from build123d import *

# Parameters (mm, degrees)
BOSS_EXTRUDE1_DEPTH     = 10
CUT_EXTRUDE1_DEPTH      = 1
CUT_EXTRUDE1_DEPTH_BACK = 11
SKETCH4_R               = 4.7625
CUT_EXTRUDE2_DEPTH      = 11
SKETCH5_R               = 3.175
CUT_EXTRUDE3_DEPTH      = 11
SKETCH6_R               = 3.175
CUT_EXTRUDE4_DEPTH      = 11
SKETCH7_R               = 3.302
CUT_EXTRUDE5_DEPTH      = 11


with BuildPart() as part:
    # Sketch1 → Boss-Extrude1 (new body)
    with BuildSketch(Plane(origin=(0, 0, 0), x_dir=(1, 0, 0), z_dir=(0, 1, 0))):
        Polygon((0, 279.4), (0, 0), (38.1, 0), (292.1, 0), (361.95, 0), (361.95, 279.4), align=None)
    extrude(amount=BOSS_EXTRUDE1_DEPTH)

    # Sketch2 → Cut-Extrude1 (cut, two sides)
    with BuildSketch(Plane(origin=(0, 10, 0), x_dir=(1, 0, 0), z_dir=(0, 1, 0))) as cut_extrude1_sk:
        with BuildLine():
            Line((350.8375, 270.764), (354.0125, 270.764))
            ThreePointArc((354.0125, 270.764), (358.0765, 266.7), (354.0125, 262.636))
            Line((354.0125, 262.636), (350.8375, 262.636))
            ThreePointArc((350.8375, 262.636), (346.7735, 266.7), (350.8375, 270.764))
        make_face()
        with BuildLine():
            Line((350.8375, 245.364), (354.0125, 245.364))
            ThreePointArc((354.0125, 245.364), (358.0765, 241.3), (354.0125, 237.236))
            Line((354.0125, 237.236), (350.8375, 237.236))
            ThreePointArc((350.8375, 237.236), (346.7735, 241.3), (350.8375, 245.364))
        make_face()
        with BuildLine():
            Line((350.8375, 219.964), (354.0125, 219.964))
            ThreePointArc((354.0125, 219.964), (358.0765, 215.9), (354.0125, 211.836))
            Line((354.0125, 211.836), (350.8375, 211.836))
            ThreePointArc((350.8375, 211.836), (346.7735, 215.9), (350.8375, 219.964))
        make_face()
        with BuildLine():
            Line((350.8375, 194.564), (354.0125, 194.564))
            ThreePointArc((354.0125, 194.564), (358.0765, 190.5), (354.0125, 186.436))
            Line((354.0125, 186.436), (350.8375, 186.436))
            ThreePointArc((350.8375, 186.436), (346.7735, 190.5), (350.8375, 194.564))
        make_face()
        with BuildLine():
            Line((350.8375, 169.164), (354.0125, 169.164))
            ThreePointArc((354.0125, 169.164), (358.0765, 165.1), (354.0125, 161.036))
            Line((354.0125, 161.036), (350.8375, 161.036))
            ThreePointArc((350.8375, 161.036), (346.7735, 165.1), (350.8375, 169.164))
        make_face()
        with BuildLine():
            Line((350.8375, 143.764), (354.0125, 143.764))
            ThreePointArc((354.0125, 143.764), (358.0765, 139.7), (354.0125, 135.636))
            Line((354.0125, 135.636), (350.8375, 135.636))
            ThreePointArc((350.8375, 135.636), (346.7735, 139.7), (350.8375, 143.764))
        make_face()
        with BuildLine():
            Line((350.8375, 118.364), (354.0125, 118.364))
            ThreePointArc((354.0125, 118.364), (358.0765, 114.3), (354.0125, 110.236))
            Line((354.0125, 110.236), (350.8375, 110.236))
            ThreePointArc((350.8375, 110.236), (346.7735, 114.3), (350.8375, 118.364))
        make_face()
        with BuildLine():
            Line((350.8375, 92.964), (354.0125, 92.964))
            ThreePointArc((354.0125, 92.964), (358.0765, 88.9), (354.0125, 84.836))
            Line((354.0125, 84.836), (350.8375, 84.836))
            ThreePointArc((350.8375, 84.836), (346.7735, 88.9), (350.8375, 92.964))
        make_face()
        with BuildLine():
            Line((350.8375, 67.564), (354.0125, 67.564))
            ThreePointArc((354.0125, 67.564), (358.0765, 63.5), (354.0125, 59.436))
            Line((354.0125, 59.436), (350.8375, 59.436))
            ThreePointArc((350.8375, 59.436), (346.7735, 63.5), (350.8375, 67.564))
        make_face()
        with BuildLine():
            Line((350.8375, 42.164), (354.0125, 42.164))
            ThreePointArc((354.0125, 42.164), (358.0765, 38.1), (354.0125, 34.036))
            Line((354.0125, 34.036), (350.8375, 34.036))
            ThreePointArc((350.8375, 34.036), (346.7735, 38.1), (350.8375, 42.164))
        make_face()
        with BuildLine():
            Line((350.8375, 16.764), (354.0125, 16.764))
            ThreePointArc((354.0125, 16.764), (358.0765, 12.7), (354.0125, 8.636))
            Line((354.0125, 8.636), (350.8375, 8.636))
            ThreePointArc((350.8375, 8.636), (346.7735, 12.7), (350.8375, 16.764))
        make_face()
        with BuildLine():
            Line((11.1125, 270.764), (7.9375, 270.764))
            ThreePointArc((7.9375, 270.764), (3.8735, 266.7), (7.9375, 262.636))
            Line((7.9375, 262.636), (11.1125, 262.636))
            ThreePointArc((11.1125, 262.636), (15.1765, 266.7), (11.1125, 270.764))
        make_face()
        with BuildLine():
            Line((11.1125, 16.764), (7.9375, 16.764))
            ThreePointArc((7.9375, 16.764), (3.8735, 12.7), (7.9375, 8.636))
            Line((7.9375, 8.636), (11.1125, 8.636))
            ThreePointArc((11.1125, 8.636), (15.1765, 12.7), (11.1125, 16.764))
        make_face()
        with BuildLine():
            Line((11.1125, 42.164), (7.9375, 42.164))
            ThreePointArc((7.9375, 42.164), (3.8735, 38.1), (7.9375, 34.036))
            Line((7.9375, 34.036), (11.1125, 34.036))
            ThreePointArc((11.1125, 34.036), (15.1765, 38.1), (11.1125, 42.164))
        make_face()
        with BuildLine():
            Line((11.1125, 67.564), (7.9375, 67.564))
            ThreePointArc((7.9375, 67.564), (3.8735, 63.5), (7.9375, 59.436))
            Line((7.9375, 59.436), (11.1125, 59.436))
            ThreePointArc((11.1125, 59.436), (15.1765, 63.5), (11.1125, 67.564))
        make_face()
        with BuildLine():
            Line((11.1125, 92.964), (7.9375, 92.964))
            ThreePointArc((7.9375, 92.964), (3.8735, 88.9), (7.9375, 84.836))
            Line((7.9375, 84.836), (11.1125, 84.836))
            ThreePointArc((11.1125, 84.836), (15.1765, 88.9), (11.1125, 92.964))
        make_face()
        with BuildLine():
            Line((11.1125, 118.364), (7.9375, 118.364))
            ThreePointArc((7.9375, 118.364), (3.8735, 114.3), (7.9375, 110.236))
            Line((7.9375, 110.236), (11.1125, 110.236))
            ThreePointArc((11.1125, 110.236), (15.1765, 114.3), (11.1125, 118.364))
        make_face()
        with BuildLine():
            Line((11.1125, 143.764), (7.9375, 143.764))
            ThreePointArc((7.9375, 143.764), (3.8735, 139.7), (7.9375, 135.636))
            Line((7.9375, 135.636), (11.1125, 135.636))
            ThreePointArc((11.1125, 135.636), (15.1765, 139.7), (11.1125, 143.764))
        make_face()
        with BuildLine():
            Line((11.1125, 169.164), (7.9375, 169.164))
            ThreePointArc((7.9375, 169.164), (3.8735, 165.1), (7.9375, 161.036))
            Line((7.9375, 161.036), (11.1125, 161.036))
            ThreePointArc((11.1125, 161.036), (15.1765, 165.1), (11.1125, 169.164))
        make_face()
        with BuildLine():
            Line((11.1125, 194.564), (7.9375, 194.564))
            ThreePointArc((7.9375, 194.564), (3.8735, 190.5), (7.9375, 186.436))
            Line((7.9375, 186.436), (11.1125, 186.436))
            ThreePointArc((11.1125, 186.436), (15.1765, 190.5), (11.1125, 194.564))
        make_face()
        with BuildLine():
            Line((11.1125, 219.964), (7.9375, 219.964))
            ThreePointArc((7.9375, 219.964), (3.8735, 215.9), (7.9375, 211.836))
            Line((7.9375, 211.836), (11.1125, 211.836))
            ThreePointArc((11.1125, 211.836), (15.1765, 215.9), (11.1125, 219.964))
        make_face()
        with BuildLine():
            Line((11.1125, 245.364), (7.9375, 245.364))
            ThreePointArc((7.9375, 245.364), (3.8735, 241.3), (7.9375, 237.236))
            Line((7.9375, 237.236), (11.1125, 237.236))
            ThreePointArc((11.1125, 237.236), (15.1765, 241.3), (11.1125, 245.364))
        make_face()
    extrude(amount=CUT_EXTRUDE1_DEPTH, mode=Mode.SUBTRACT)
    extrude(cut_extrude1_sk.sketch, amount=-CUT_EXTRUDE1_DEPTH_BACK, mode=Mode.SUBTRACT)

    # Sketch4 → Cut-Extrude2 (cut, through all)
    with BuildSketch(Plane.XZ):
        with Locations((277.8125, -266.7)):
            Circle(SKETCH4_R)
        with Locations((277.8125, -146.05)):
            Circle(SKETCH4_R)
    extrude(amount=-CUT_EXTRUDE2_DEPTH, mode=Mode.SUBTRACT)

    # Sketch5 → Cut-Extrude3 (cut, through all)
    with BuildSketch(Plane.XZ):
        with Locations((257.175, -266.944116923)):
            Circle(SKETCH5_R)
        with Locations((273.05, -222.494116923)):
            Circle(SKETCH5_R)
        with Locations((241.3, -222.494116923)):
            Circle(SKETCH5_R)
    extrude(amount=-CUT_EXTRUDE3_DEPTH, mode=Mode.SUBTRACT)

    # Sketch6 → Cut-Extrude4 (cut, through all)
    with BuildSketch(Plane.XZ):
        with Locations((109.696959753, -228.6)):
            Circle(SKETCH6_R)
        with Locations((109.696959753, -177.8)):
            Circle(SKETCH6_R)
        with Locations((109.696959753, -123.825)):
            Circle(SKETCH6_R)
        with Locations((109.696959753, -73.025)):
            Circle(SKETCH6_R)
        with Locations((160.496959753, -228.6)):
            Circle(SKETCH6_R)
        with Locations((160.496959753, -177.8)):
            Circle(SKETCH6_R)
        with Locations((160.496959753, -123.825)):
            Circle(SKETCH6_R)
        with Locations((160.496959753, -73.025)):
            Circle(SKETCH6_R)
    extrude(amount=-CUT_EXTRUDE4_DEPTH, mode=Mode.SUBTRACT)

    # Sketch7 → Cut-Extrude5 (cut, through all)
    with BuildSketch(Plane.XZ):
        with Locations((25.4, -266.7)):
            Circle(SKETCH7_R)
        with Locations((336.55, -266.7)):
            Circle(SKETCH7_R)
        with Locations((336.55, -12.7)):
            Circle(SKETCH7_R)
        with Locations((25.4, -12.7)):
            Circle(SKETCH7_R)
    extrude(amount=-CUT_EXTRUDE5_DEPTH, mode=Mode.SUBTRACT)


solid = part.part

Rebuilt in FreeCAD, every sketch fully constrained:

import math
import FreeCAD as App
import Part
import Sketcher
Q = App.Units.Quantity


def add_polygon(sketch, points):
    """Adds a closed chain of lines whose ends are joined by coincident constraints."""
    first, n = sketch.GeometryCount, len(points)
    for a, b in zip(points, points[1:] + points[:1]):
        sketch.addGeometry(Part.LineSegment(App.Vector(*a, 0), App.Vector(*b, 0)), False)
    for i in range(n):
        sketch.addConstraint(Sketcher.Constraint("Coincident", first + i, 2, first + (i + 1) % n, 1))

doc = App.newDocument("Part")
body = doc.addObject("PartDesign::Body", "Body")

sketch1 = body.newObject("Sketcher::SketchObject", "Sketch")
sketch1.AttachmentSupport = (doc.getObject("XZ_Plane"), [""])
sketch1.MapMode = "FlatFace"
add_polygon(sketch1, [(0, -279), (0, 0), (362, 0), (362, -279)])
sketch1.addConstraint(Sketcher.Constraint("Vertical", 0))
sketch1.addConstraint(Sketcher.Constraint("Horizontal", 1))
sketch1.addConstraint(Sketcher.Constraint("Vertical", 2))
sketch1.addConstraint(Sketcher.Constraint("Horizontal", 3))
sketch1.addConstraint(Sketcher.Constraint("Coincident", 0, 2, -1, 1))
sketch1.addConstraint(Sketcher.Constraint("DistanceY", 0, 1, 0, 2, Q("11 in")))
sketch1.addConstraint(Sketcher.Constraint("DistanceX", 1, 1, 1, 2, Q("14.25 in")))
pad1 = body.newObject("PartDesign::Pad", "Pad")
pad1.Profile = sketch1
pad1.Length = 10
pad1.Reversed = True

sketch2 = body.newObject("Sketcher::SketchObject", "Sketch001")
sketch2.AttachmentSupport = (doc.getObject("XZ_Plane"), [""])
sketch2.MapMode = "FlatFace"
sketch2.AttachmentOffset = App.Placement(App.Vector(0, 0, -10), App.Rotation())
sketch2.addGeometry(Part.LineSegment(App.Vector(354, -270.8, 0), App.Vector(350.8, -270.8, 0)), False)
sketch2.addGeometry(Part.ArcOfCircle(Part.Circle(App.Vector(350.8, -266.7, 0), App.Vector(0, 0, 1), 4.1), math.radians(90), math.radians(270)), False)
sketch2.addGeometry(Part.LineSegment(App.Vector(350.8, -262.6, 0), App.Vector(354, -262.6, 0)), False)
sketch2.addGeometry(Part.ArcOfCircle(Part.Circle(App.Vector(354, -266.7, 0), App.Vector(0, 0, 1), 4.1), math.radians(-90), math.radians(90)), False)
sketch2.addGeometry(Part.LineSegment(App.Vector(354, -245.4, 0), App.Vector(350.8, -245.4, 0)), False)
sketch2.addGeometry(Part.ArcOfCircle(Part.Circle(App.Vector(350.8, -241.3, 0), App.Vector(0, 0, 1), 4.1), math.radians(90), math.radians(270)), False)
sketch2.addGeometry(Part.LineSegment(App.Vector(350.8, -237.2, 0), App.Vector(354, -237.2, 0)), False)
sketch2.addGeometry(Part.ArcOfCircle(Part.Circle(App.Vector(354, -241.3, 0), App.Vector(0, 0, 1), 4.1), math.radians(-90), math.radians(90)), False)
sketch2.addGeometry(Part.LineSegment(App.Vector(354, -220, 0), App.Vector(350.8, -220, 0)), False)
sketch2.addGeometry(Part.ArcOfCircle(Part.Circle(App.Vector(350.8, -215.9, 0), App.Vector(0, 0, 1), 4.1), math.radians(90), math.radians(270)), False)
sketch2.addGeometry(Part.LineSegment(App.Vector(350.8, -211.8, 0), App.Vector(354, -211.8, 0)), False)
sketch2.addGeometry(Part.ArcOfCircle(Part.Circle(App.Vector(354, -215.9, 0), App.Vector(0, 0, 1), 4.1), math.radians(-90), math.radians(90)), False)
sketch2.addGeometry(Part.LineSegment(App.Vector(354, -194.6, 0), App.Vector(350.8, -194.6, 0)), False)
sketch2.addGeometry(Part.ArcOfCircle(Part.Circle(App.Vector(350.8, -190.5, 0), App.Vector(0, 0, 1), 4.1), math.radians(90), math.radians(270)), False)
sketch2.addGeometry(Part.LineSegment(App.Vector(350.8, -186.4, 0), App.Vector(354, -186.4, 0)), False)
sketch2.addGeometry(Part.ArcOfCircle(Part.Circle(App.Vector(354, -190.5, 0), App.Vector(0, 0, 1), 4.1), math.radians(-90), math.radians(90)), False)
sketch2.addGeometry(Part.LineSegment(App.Vector(354, -169.2, 0), App.Vector(350.8, -169.2, 0)), False)
sketch2.addGeometry(Part.ArcOfCircle(Part.Circle(App.Vector(350.8, -165.1, 0), App.Vector(0, 0, 1), 4.1), math.radians(90), math.radians(270)), False)
sketch2.addGeometry(Part.LineSegment(App.Vector(350.8, -161, 0), App.Vector(354, -161, 0)), False)
sketch2.addGeometry(Part.ArcOfCircle(Part.Circle(App.Vector(354, -165.1, 0), App.Vector(0, 0, 1), 4.1), math.radians(-90), math.radians(90)), False)
sketch2.addGeometry(Part.LineSegment(App.Vector(354, -143.8, 0), App.Vector(350.8, -143.8, 0)), False)
sketch2.addGeometry(Part.ArcOfCircle(Part.Circle(App.Vector(350.8, -139.7, 0), App.Vector(0, 0, 1), 4.1), math.radians(90), math.radians(270)), False)
sketch2.addGeometry(Part.LineSegment(App.Vector(350.8, -135.6, 0), App.Vector(354, -135.6, 0)), False)
sketch2.addGeometry(Part.ArcOfCircle(Part.Circle(App.Vector(354, -139.7, 0), App.Vector(0, 0, 1), 4.1), math.radians(-90), math.radians(90)), False)
sketch2.addGeometry(Part.LineSegment(App.Vector(354, -118.4, 0), App.Vector(350.8, -118.4, 0)), False)
sketch2.addGeometry(Part.ArcOfCircle(Part.Circle(App.Vector(350.8, -114.3, 0), App.Vector(0, 0, 1), 4.1), math.radians(90), math.radians(270)), False)
sketch2.addGeometry(Part.LineSegment(App.Vector(350.8, -110.2, 0), App.Vector(354, -110.2, 0)), False)
sketch2.addGeometry(Part.ArcOfCircle(Part.Circle(App.Vector(354, -114.3, 0), App.Vector(0, 0, 1), 4.1), math.radians(-90), math.radians(90)), False)
sketch2.addGeometry(Part.LineSegment(App.Vector(354, -93, 0), App.Vector(350.8, -93, 0)), False)
sketch2.addGeometry(Part.ArcOfCircle(Part.Circle(App.Vector(350.8, -88.9, 0), App.Vector(0, 0, 1), 4.1), math.radians(90), math.radians(270)), False)
sketch2.addGeometry(Part.LineSegment(App.Vector(350.8, -84.8, 0), App.Vector(354, -84.8, 0)), False)
sketch2.addGeometry(Part.ArcOfCircle(Part.Circle(App.Vector(354, -88.9, 0), App.Vector(0, 0, 1), 4.1), math.radians(-90), math.radians(90)), False)
sketch2.addGeometry(Part.LineSegment(App.Vector(354, -67.6, 0), App.Vector(350.8, -67.6, 0)), False)
sketch2.addGeometry(Part.ArcOfCircle(Part.Circle(App.Vector(350.8, -63.5, 0), App.Vector(0, 0, 1), 4.1), math.radians(90), math.radians(270)), False)
sketch2.addGeometry(Part.LineSegment(App.Vector(350.8, -59.4, 0), App.Vector(354, -59.4, 0)), False)
sketch2.addGeometry(Part.ArcOfCircle(Part.Circle(App.Vector(354, -63.5, 0), App.Vector(0, 0, 1), 4.1), math.radians(-90), math.radians(90)), False)
sketch2.addGeometry(Part.LineSegment(App.Vector(354, -42.2, 0), App.Vector(350.8, -42.2, 0)), False)
sketch2.addGeometry(Part.ArcOfCircle(Part.Circle(App.Vector(350.8, -38.1, 0), App.Vector(0, 0, 1), 4.1), math.radians(90), math.radians(270)), False)
sketch2.addGeometry(Part.LineSegment(App.Vector(350.8, -34, 0), App.Vector(354, -34, 0)), False)
sketch2.addGeometry(Part.ArcOfCircle(Part.Circle(App.Vector(354, -38.1, 0), App.Vector(0, 0, 1), 4.1), math.radians(-90), math.radians(90)), False)
sketch2.addGeometry(Part.LineSegment(App.Vector(354, -16.8, 0), App.Vector(350.8, -16.8, 0)), False)
sketch2.addGeometry(Part.ArcOfCircle(Part.Circle(App.Vector(350.8, -12.7, 0), App.Vector(0, 0, 1), 4.1), math.radians(90), math.radians(270)), False)
sketch2.addGeometry(Part.LineSegment(App.Vector(350.8, -8.6, 0), App.Vector(354, -8.6, 0)), False)
sketch2.addGeometry(Part.ArcOfCircle(Part.Circle(App.Vector(354, -12.7, 0), App.Vector(0, 0, 1), 4.1), math.radians(-90), math.radians(90)), False)
sketch2.addGeometry(Part.LineSegment(App.Vector(11.1, -270.8, 0), App.Vector(7.9, -270.8, 0)), False)
sketch2.addGeometry(Part.ArcOfCircle(Part.Circle(App.Vector(7.9, -266.7, 0), App.Vector(0, 0, 1), 4.1), math.radians(90), math.radians(270)), False)
sketch2.addGeometry(Part.LineSegment(App.Vector(7.9, -262.6, 0), App.Vector(11.1, -262.6, 0)), False)
sketch2.addGeometry(Part.ArcOfCircle(Part.Circle(App.Vector(11.1, -266.7, 0), App.Vector(0, 0, 1), 4.1), math.radians(-90), math.radians(90)), False)
sketch2.addGeometry(Part.LineSegment(App.Vector(11.1, -16.8, 0), App.Vector(7.9, -16.8, 0)), False)
sketch2.addGeometry(Part.ArcOfCircle(Part.Circle(App.Vector(7.9, -12.7, 0), App.Vector(0, 0, 1), 4.1), math.radians(90), math.radians(270)), False)
sketch2.addGeometry(Part.LineSegment(App.Vector(7.9, -8.6, 0), App.Vector(11.1, -8.6, 0)), False)
sketch2.addGeometry(Part.ArcOfCircle(Part.Circle(App.Vector(11.1, -12.7, 0), App.Vector(0, 0, 1), 4.1), math.radians(-90), math.radians(90)), False)
sketch2.addGeometry(Part.LineSegment(App.Vector(11.1, -42.2, 0), App.Vector(7.9, -42.2, 0)), False)
sketch2.addGeometry(Part.ArcOfCircle(Part.Circle(App.Vector(7.9, -38.1, 0), App.Vector(0, 0, 1), 4.1), math.radians(90), math.radians(270)), False)
sketch2.addGeometry(Part.LineSegment(App.Vector(7.9, -34, 0), App.Vector(11.1, -34, 0)), False)
sketch2.addGeometry(Part.ArcOfCircle(Part.Circle(App.Vector(11.1, -38.1, 0), App.Vector(0, 0, 1), 4.1), math.radians(-90), math.radians(90)), False)
sketch2.addGeometry(Part.LineSegment(App.Vector(11.1, -67.6, 0), App.Vector(7.9, -67.6, 0)), False)
sketch2.addGeometry(Part.ArcOfCircle(Part.Circle(App.Vector(7.9, -63.5, 0), App.Vector(0, 0, 1), 4.1), math.radians(90), math.radians(270)), False)
sketch2.addGeometry(Part.LineSegment(App.Vector(7.9, -59.4, 0), App.Vector(11.1, -59.4, 0)), False)
sketch2.addGeometry(Part.ArcOfCircle(Part.Circle(App.Vector(11.1, -63.5, 0), App.Vector(0, 0, 1), 4.1), math.radians(-90), math.radians(90)), False)
sketch2.addGeometry(Part.LineSegment(App.Vector(11.1, -93, 0), App.Vector(7.9, -93, 0)), False)
sketch2.addGeometry(Part.ArcOfCircle(Part.Circle(App.Vector(7.9, -88.9, 0), App.Vector(0, 0, 1), 4.1), math.radians(90), math.radians(270)), False)
sketch2.addGeometry(Part.LineSegment(App.Vector(7.9, -84.8, 0), App.Vector(11.1, -84.8, 0)), False)
sketch2.addGeometry(Part.ArcOfCircle(Part.Circle(App.Vector(11.1, -88.9, 0), App.Vector(0, 0, 1), 4.1), math.radians(-90), math.radians(90)), False)
sketch2.addGeometry(Part.LineSegment(App.Vector(11.1, -118.4, 0), App.Vector(7.9, -118.4, 0)), False)
sketch2.addGeometry(Part.ArcOfCircle(Part.Circle(App.Vector(7.9, -114.3, 0), App.Vector(0, 0, 1), 4.1), math.radians(90), math.radians(270)), False)
sketch2.addGeometry(Part.LineSegment(App.Vector(7.9, -110.2, 0), App.Vector(11.1, -110.2, 0)), False)
sketch2.addGeometry(Part.ArcOfCircle(Part.Circle(App.Vector(11.1, -114.3, 0), App.Vector(0, 0, 1), 4.1), math.radians(-90), math.radians(90)), False)
sketch2.addGeometry(Part.LineSegment(App.Vector(11.1, -143.8, 0), App.Vector(7.9, -143.8, 0)), False)
sketch2.addGeometry(Part.ArcOfCircle(Part.Circle(App.Vector(7.9, -139.7, 0), App.Vector(0, 0, 1), 4.1), math.radians(90), math.radians(270)), False)
sketch2.addGeometry(Part.LineSegment(App.Vector(7.9, -135.6, 0), App.Vector(11.1, -135.6, 0)), False)
sketch2.addGeometry(Part.ArcOfCircle(Part.Circle(App.Vector(11.1, -139.7, 0), App.Vector(0, 0, 1), 4.1), math.radians(-90), math.radians(90)), False)
sketch2.addGeometry(Part.LineSegment(App.Vector(11.1, -169.2, 0), App.Vector(7.9, -169.2, 0)), False)
sketch2.addGeometry(Part.ArcOfCircle(Part.Circle(App.Vector(7.9, -165.1, 0), App.Vector(0, 0, 1), 4.1), math.radians(90), math.radians(270)), False)
sketch2.addGeometry(Part.LineSegment(App.Vector(7.9, -161, 0), App.Vector(11.1, -161, 0)), False)
sketch2.addGeometry(Part.ArcOfCircle(Part.Circle(App.Vector(11.1, -165.1, 0), App.Vector(0, 0, 1), 4.1), math.radians(-90), math.radians(90)), False)
sketch2.addGeometry(Part.LineSegment(App.Vector(11.1, -194.6, 0), App.Vector(7.9, -194.6, 0)), False)
sketch2.addGeometry(Part.ArcOfCircle(Part.Circle(App.Vector(7.9, -190.5, 0), App.Vector(0, 0, 1), 4.1), math.radians(90), math.radians(270)), False)
sketch2.addGeometry(Part.LineSegment(App.Vector(7.9, -186.4, 0), App.Vector(11.1, -186.4, 0)), False)
sketch2.addGeometry(Part.ArcOfCircle(Part.Circle(App.Vector(11.1, -190.5, 0), App.Vector(0, 0, 1), 4.1), math.radians(-90), math.radians(90)), False)
sketch2.addGeometry(Part.LineSegment(App.Vector(11.1, -220, 0), App.Vector(7.9, -220, 0)), False)
sketch2.addGeometry(Part.ArcOfCircle(Part.Circle(App.Vector(7.9, -215.9, 0), App.Vector(0, 0, 1), 4.1), math.radians(90), math.radians(270)), False)
sketch2.addGeometry(Part.LineSegment(App.Vector(7.9, -211.8, 0), App.Vector(11.1, -211.8, 0)), False)
sketch2.addGeometry(Part.ArcOfCircle(Part.Circle(App.Vector(11.1, -215.9, 0), App.Vector(0, 0, 1), 4.1), math.radians(-90), math.radians(90)), False)
sketch2.addGeometry(Part.LineSegment(App.Vector(11.1, -245.4, 0), App.Vector(7.9, -245.4, 0)), False)
sketch2.addGeometry(Part.ArcOfCircle(Part.Circle(App.Vector(7.9, -241.3, 0), App.Vector(0, 0, 1), 4.1), math.radians(90), math.radians(270)), False)
sketch2.addGeometry(Part.LineSegment(App.Vector(7.9, -237.2, 0), App.Vector(11.1, -237.2, 0)), False)
sketch2.addGeometry(Part.ArcOfCircle(Part.Circle(App.Vector(11.1, -241.3, 0), App.Vector(0, 0, 1), 4.1), math.radians(-90), math.radians(90)), False)
sketch2.addConstraint(Sketcher.Constraint("Tangent", 0, 2, 1, 2))
sketch2.addConstraint(Sketcher.Constraint("Tangent", 1, 1, 2, 1))
sketch2.addConstraint(Sketcher.Constraint("Tangent", 2, 2, 3, 2))
sketch2.addConstraint(Sketcher.Constraint("Tangent", 3, 1, 0, 1))
sketch2.addConstraint(Sketcher.Constraint("Tangent", 4, 2, 5, 2))
sketch2.addConstraint(Sketcher.Constraint("Tangent", 5, 1, 6, 1))
sketch2.addConstraint(Sketcher.Constraint("Tangent", 6, 2, 7, 2))
sketch2.addConstraint(Sketcher.Constraint("Tangent", 7, 1, 4, 1))
sketch2.addConstraint(Sketcher.Constraint("Tangent", 8, 2, 9, 2))
sketch2.addConstraint(Sketcher.Constraint("Tangent", 9, 1, 10, 1))
sketch2.addConstraint(Sketcher.Constraint("Tangent", 10, 2, 11, 2))
sketch2.addConstraint(Sketcher.Constraint("Tangent", 11, 1, 8, 1))
sketch2.addConstraint(Sketcher.Constraint("Tangent", 12, 2, 13, 2))
sketch2.addConstraint(Sketcher.Constraint("Tangent", 13, 1, 14, 1))
sketch2.addConstraint(Sketcher.Constraint("Tangent", 14, 2, 15, 2))
sketch2.addConstraint(Sketcher.Constraint("Tangent", 15, 1, 12, 1))
sketch2.addConstraint(Sketcher.Constraint("Tangent", 16, 2, 17, 2))
sketch2.addConstraint(Sketcher.Constraint("Tangent", 17, 1, 18, 1))
sketch2.addConstraint(Sketcher.Constraint("Tangent", 18, 2, 19, 2))
sketch2.addConstraint(Sketcher.Constraint("Tangent", 19, 1, 16, 1))
sketch2.addConstraint(Sketcher.Constraint("Tangent", 20, 2, 21, 2))
sketch2.addConstraint(Sketcher.Constraint("Tangent", 21, 1, 22, 1))
sketch2.addConstraint(Sketcher.Constraint("Tangent", 22, 2, 23, 2))
sketch2.addConstraint(Sketcher.Constraint("Tangent", 23, 1, 20, 1))
sketch2.addConstraint(Sketcher.Constraint("Tangent", 24, 2, 25, 2))
sketch2.addConstraint(Sketcher.Constraint("Tangent", 25, 1, 26, 1))
sketch2.addConstraint(Sketcher.Constraint("Tangent", 26, 2, 27, 2))
sketch2.addConstraint(Sketcher.Constraint("Tangent", 27, 1, 24, 1))
sketch2.addConstraint(Sketcher.Constraint("Tangent", 28, 2, 29, 2))
sketch2.addConstraint(Sketcher.Constraint("Tangent", 29, 1, 30, 1))
sketch2.addConstraint(Sketcher.Constraint("Tangent", 30, 2, 31, 2))
sketch2.addConstraint(Sketcher.Constraint("Tangent", 31, 1, 28, 1))
sketch2.addConstraint(Sketcher.Constraint("Tangent", 32, 2, 33, 2))
sketch2.addConstraint(Sketcher.Constraint("Tangent", 33, 1, 34, 1))
sketch2.addConstraint(Sketcher.Constraint("Tangent", 34, 2, 35, 2))
sketch2.addConstraint(Sketcher.Constraint("Tangent", 35, 1, 32, 1))
sketch2.addConstraint(Sketcher.Constraint("Tangent", 36, 2, 37, 2))
sketch2.addConstraint(Sketcher.Constraint("Tangent", 37, 1, 38, 1))
sketch2.addConstraint(Sketcher.Constraint("Tangent", 38, 2, 39, 2))
sketch2.addConstraint(Sketcher.Constraint("Tangent", 39, 1, 36, 1))
sketch2.addConstraint(Sketcher.Constraint("Tangent", 40, 2, 41, 2))
sketch2.addConstraint(Sketcher.Constraint("Tangent", 41, 1, 42, 1))
sketch2.addConstraint(Sketcher.Constraint("Tangent", 42, 2, 43, 2))
sketch2.addConstraint(Sketcher.Constraint("Tangent", 43, 1, 40, 1))
sketch2.addConstraint(Sketcher.Constraint("Tangent", 44, 2, 45, 2))
sketch2.addConstraint(Sketcher.Constraint("Tangent", 45, 1, 46, 1))
sketch2.addConstraint(Sketcher.Constraint("Tangent", 46, 2, 47, 2))
sketch2.addConstraint(Sketcher.Constraint("Tangent", 47, 1, 44, 1))
sketch2.addConstraint(Sketcher.Constraint("Tangent", 48, 2, 49, 2))
sketch2.addConstraint(Sketcher.Constraint("Tangent", 49, 1, 50, 1))
sketch2.addConstraint(Sketcher.Constraint("Tangent", 50, 2, 51, 2))
sketch2.addConstraint(Sketcher.Constraint("Tangent", 51, 1, 48, 1))
sketch2.addConstraint(Sketcher.Constraint("Tangent", 52, 2, 53, 2))
sketch2.addConstraint(Sketcher.Constraint("Tangent", 53, 1, 54, 1))
sketch2.addConstraint(Sketcher.Constraint("Tangent", 54, 2, 55, 2))
sketch2.addConstraint(Sketcher.Constraint("Tangent", 55, 1, 52, 1))
sketch2.addConstraint(Sketcher.Constraint("Tangent", 56, 2, 57, 2))
sketch2.addConstraint(Sketcher.Constraint("Tangent", 57, 1, 58, 1))
sketch2.addConstraint(Sketcher.Constraint("Tangent", 58, 2, 59, 2))
sketch2.addConstraint(Sketcher.Constraint("Tangent", 59, 1, 56, 1))
sketch2.addConstraint(Sketcher.Constraint("Tangent", 60, 2, 61, 2))
sketch2.addConstraint(Sketcher.Constraint("Tangent", 61, 1, 62, 1))
sketch2.addConstraint(Sketcher.Constraint("Tangent", 62, 2, 63, 2))
sketch2.addConstraint(Sketcher.Constraint("Tangent", 63, 1, 60, 1))
sketch2.addConstraint(Sketcher.Constraint("Tangent", 64, 2, 65, 2))
sketch2.addConstraint(Sketcher.Constraint("Tangent", 65, 1, 66, 1))
sketch2.addConstraint(Sketcher.Constraint("Tangent", 66, 2, 67, 2))
sketch2.addConstraint(Sketcher.Constraint("Tangent", 67, 1, 64, 1))
sketch2.addConstraint(Sketcher.Constraint("Tangent", 68, 2, 69, 2))
sketch2.addConstraint(Sketcher.Constraint("Tangent", 69, 1, 70, 1))
sketch2.addConstraint(Sketcher.Constraint("Tangent", 70, 2, 71, 2))
sketch2.addConstraint(Sketcher.Constraint("Tangent", 71, 1, 68, 1))
sketch2.addConstraint(Sketcher.Constraint("Tangent", 72, 2, 73, 2))
sketch2.addConstraint(Sketcher.Constraint("Tangent", 73, 1, 74, 1))
sketch2.addConstraint(Sketcher.Constraint("Tangent", 74, 2, 75, 2))
sketch2.addConstraint(Sketcher.Constraint("Tangent", 75, 1, 72, 1))
sketch2.addConstraint(Sketcher.Constraint("Tangent", 76, 2, 77, 2))
sketch2.addConstraint(Sketcher.Constraint("Tangent", 77, 1, 78, 1))
sketch2.addConstraint(Sketcher.Constraint("Tangent", 78, 2, 79, 2))
sketch2.addConstraint(Sketcher.Constraint("Tangent", 79, 1, 76, 1))
sketch2.addConstraint(Sketcher.Constraint("Tangent", 80, 2, 81, 2))
sketch2.addConstraint(Sketcher.Constraint("Tangent", 81, 1, 82, 1))
sketch2.addConstraint(Sketcher.Constraint("Tangent", 82, 2, 83, 2))
sketch2.addConstraint(Sketcher.Constraint("Tangent", 83, 1, 80, 1))
sketch2.addConstraint(Sketcher.Constraint("Tangent", 84, 2, 85, 2))
sketch2.addConstraint(Sketcher.Constraint("Tangent", 85, 1, 86, 1))
sketch2.addConstraint(Sketcher.Constraint("Tangent", 86, 2, 87, 2))
sketch2.addConstraint(Sketcher.Constraint("Tangent", 87, 1, 84, 1))
sketch2.addConstraint(Sketcher.Constraint("Horizontal", 0))
sketch2.addConstraint(Sketcher.Constraint("Horizontal", 2))
sketch2.addConstraint(Sketcher.Constraint("Horizontal", 4))
sketch2.addConstraint(Sketcher.Constraint("Horizontal", 6))
sketch2.addConstraint(Sketcher.Constraint("Horizontal", 8))
sketch2.addConstraint(Sketcher.Constraint("Horizontal", 10))
sketch2.addConstraint(Sketcher.Constraint("Horizontal", 12))
sketch2.addConstraint(Sketcher.Constraint("Horizontal", 14))
sketch2.addConstraint(Sketcher.Constraint("Horizontal", 16))
sketch2.addConstraint(Sketcher.Constraint("Horizontal", 18))
sketch2.addConstraint(Sketcher.Constraint("Horizontal", 20))
sketch2.addConstraint(Sketcher.Constraint("Horizontal", 22))
sketch2.addConstraint(Sketcher.Constraint("Horizontal", 24))
sketch2.addConstraint(Sketcher.Constraint("Horizontal", 26))
sketch2.addConstraint(Sketcher.Constraint("Horizontal", 28))
sketch2.addConstraint(Sketcher.Constraint("Horizontal", 30))
sketch2.addConstraint(Sketcher.Constraint("Horizontal", 32))
sketch2.addConstraint(Sketcher.Constraint("Horizontal", 34))
sketch2.addConstraint(Sketcher.Constraint("Horizontal", 36))
sketch2.addConstraint(Sketcher.Constraint("Horizontal", 38))
sketch2.addConstraint(Sketcher.Constraint("Horizontal", 40))
sketch2.addConstraint(Sketcher.Constraint("Horizontal", 42))
sketch2.addConstraint(Sketcher.Constraint("Horizontal", 44))
sketch2.addConstraint(Sketcher.Constraint("Horizontal", 46))
sketch2.addConstraint(Sketcher.Constraint("Horizontal", 48))
sketch2.addConstraint(Sketcher.Constraint("Horizontal", 50))
sketch2.addConstraint(Sketcher.Constraint("Horizontal", 52))
sketch2.addConstraint(Sketcher.Constraint("Horizontal", 54))
sketch2.addConstraint(Sketcher.Constraint("Horizontal", 56))
sketch2.addConstraint(Sketcher.Constraint("Horizontal", 58))
sketch2.addConstraint(Sketcher.Constraint("Horizontal", 60))
sketch2.addConstraint(Sketcher.Constraint("Horizontal", 62))
sketch2.addConstraint(Sketcher.Constraint("Horizontal", 64))
sketch2.addConstraint(Sketcher.Constraint("Horizontal", 66))
sketch2.addConstraint(Sketcher.Constraint("Horizontal", 68))
sketch2.addConstraint(Sketcher.Constraint("Horizontal", 70))
sketch2.addConstraint(Sketcher.Constraint("Horizontal", 72))
sketch2.addConstraint(Sketcher.Constraint("Horizontal", 74))
sketch2.addConstraint(Sketcher.Constraint("Horizontal", 76))
sketch2.addConstraint(Sketcher.Constraint("Horizontal", 78))
sketch2.addConstraint(Sketcher.Constraint("Horizontal", 80))
sketch2.addConstraint(Sketcher.Constraint("Horizontal", 82))
sketch2.addConstraint(Sketcher.Constraint("Horizontal", 84))
sketch2.addConstraint(Sketcher.Constraint("Horizontal", 86))
sketch2.addConstraint(Sketcher.Constraint("Equal", 3, 5))
sketch2.addConstraint(Sketcher.Constraint("Equal", 7, 9))
sketch2.addConstraint(Sketcher.Constraint("Equal", 11, 13))
sketch2.addConstraint(Sketcher.Constraint("Equal", 15, 17))
sketch2.addConstraint(Sketcher.Constraint("Equal", 19, 21))
sketch2.addConstraint(Sketcher.Constraint("Equal", 23, 25))
sketch2.addConstraint(Sketcher.Constraint("Equal", 27, 29))
sketch2.addConstraint(Sketcher.Constraint("Equal", 31, 33))
sketch2.addConstraint(Sketcher.Constraint("Equal", 35, 37))
sketch2.addConstraint(Sketcher.Constraint("Equal", 39, 41))
sketch2.addConstraint(Sketcher.Constraint("Equal", 43, 45))
sketch2.addConstraint(Sketcher.Constraint("Equal", 47, 49))
sketch2.addConstraint(Sketcher.Constraint("Equal", 51, 53))
sketch2.addConstraint(Sketcher.Constraint("Equal", 55, 57))
sketch2.addConstraint(Sketcher.Constraint("Equal", 59, 61))
sketch2.addConstraint(Sketcher.Constraint("Equal", 63, 65))
sketch2.addConstraint(Sketcher.Constraint("Equal", 67, 69))
sketch2.addConstraint(Sketcher.Constraint("Equal", 71, 73))
sketch2.addConstraint(Sketcher.Constraint("Equal", 75, 77))
sketch2.addConstraint(Sketcher.Constraint("Equal", 79, 81))
sketch2.addConstraint(Sketcher.Constraint("Equal", 83, 85))
sketch2.addConstraint(Sketcher.Constraint("Horizontal", 3, 3, 45, 3))
sketch2.addConstraint(Sketcher.Constraint("Horizontal", 43, 3, 49, 3))
sketch2.addConstraint(Sketcher.Constraint("Horizontal", 39, 3, 53, 3))
sketch2.addConstraint(Sketcher.Constraint("Horizontal", 35, 3, 57, 3))
sketch2.addConstraint(Sketcher.Constraint("Horizontal", 31, 3, 61, 3))
sketch2.addConstraint(Sketcher.Constraint("Horizontal", 27, 3, 65, 3))
sketch2.addConstraint(Sketcher.Constraint("Horizontal", 23, 3, 69, 3))
sketch2.addConstraint(Sketcher.Constraint("Horizontal", 19, 3, 73, 3))
sketch2.addConstraint(Sketcher.Constraint("Horizontal", 15, 3, 77, 3))
sketch2.addConstraint(Sketcher.Constraint("Horizontal", 11, 3, 81, 3))
sketch2.addConstraint(Sketcher.Constraint("Horizontal", 7, 3, 85, 3))
sketch2.addConstraint(Sketcher.Constraint("Vertical", 1, 3, 5, 3))
sketch2.addConstraint(Sketcher.Constraint("Vertical", 3, 3, 7, 3))
sketch2.addConstraint(Sketcher.Constraint("Vertical", 5, 3, 9, 3))
sketch2.addConstraint(Sketcher.Constraint("Vertical", 7, 3, 11, 3))
sketch2.addConstraint(Sketcher.Constraint("Vertical", 9, 3, 13, 3))
sketch2.addConstraint(Sketcher.Constraint("Vertical", 11, 3, 15, 3))
sketch2.addConstraint(Sketcher.Constraint("Vertical", 13, 3, 17, 3))
sketch2.addConstraint(Sketcher.Constraint("Vertical", 15, 3, 19, 3))
sketch2.addConstraint(Sketcher.Constraint("Vertical", 17, 3, 21, 3))
sketch2.addConstraint(Sketcher.Constraint("Vertical", 19, 3, 23, 3))
sketch2.addConstraint(Sketcher.Constraint("Vertical", 21, 3, 25, 3))
sketch2.addConstraint(Sketcher.Constraint("Vertical", 23, 3, 27, 3))
sketch2.addConstraint(Sketcher.Constraint("Vertical", 25, 3, 29, 3))
sketch2.addConstraint(Sketcher.Constraint("Vertical", 27, 3, 31, 3))
sketch2.addConstraint(Sketcher.Constraint("Vertical", 29, 3, 33, 3))
sketch2.addConstraint(Sketcher.Constraint("Vertical", 31, 3, 35, 3))
sketch2.addConstraint(Sketcher.Constraint("Vertical", 33, 3, 37, 3))
sketch2.addConstraint(Sketcher.Constraint("Vertical", 35, 3, 39, 3))
sketch2.addConstraint(Sketcher.Constraint("Vertical", 37, 3, 41, 3))
sketch2.addConstraint(Sketcher.Constraint("Vertical", 39, 3, 43, 3))
sketch2.addConstraint(Sketcher.Constraint("Vertical", 45, 3, 49, 3))
sketch2.addConstraint(Sketcher.Constraint("Vertical", 47, 3, 51, 3))
sketch2.addConstraint(Sketcher.Constraint("Vertical", 49, 3, 53, 3))
sketch2.addConstraint(Sketcher.Constraint("Vertical", 51, 3, 55, 3))
sketch2.addConstraint(Sketcher.Constraint("Vertical", 53, 3, 57, 3))
sketch2.addConstraint(Sketcher.Constraint("Vertical", 55, 3, 59, 3))
sketch2.addConstraint(Sketcher.Constraint("Vertical", 57, 3, 61, 3))
sketch2.addConstraint(Sketcher.Constraint("Vertical", 59, 3, 63, 3))
sketch2.addConstraint(Sketcher.Constraint("Vertical", 61, 3, 65, 3))
sketch2.addConstraint(Sketcher.Constraint("Vertical", 63, 3, 67, 3))
sketch2.addConstraint(Sketcher.Constraint("Vertical", 65, 3, 69, 3))
sketch2.addConstraint(Sketcher.Constraint("Vertical", 67, 3, 71, 3))
sketch2.addConstraint(Sketcher.Constraint("Vertical", 69, 3, 73, 3))
sketch2.addConstraint(Sketcher.Constraint("Vertical", 71, 3, 75, 3))
sketch2.addConstraint(Sketcher.Constraint("Vertical", 73, 3, 77, 3))
sketch2.addConstraint(Sketcher.Constraint("Vertical", 75, 3, 79, 3))
sketch2.addConstraint(Sketcher.Constraint("Vertical", 77, 3, 81, 3))
sketch2.addConstraint(Sketcher.Constraint("Vertical", 79, 3, 83, 3))
sketch2.addConstraint(Sketcher.Constraint("Vertical", 81, 3, 85, 3))
sketch2.addConstraint(Sketcher.Constraint("Vertical", 83, 3, 87, 3))
sketch2.addConstraint(Sketcher.Constraint("Equal", 42, 44))
sketch2.addConstraint(Sketcher.Constraint("Radius", 1, Q("0.16 in")))
sketch2.addConstraint(Sketcher.Constraint("DistanceY", 1, 3, -1, 1, Q("10.5 in")))
sketch2.addConstraint(Sketcher.Constraint("DistanceY", 5, 3, -1, 1, Q("9.5 in")))
sketch2.addConstraint(Sketcher.Constraint("DistanceY", 9, 3, -1, 1, Q("8.5 in")))
sketch2.addConstraint(Sketcher.Constraint("DistanceY", 13, 3, -1, 1, Q("7.5 in")))
sketch2.addConstraint(Sketcher.Constraint("DistanceY", 17, 3, -1, 1, Q("6.5 in")))
sketch2.addConstraint(Sketcher.Constraint("DistanceY", 21, 3, -1, 1, Q("5.5 in")))
sketch2.addConstraint(Sketcher.Constraint("DistanceY", 25, 3, -1, 1, Q("4.5 in")))
sketch2.addConstraint(Sketcher.Constraint("DistanceY", 29, 3, -1, 1, Q("3.5 in")))
sketch2.addConstraint(Sketcher.Constraint("DistanceY", 33, 3, -1, 1, Q("2.5 in")))
sketch2.addConstraint(Sketcher.Constraint("DistanceY", 37, 3, -1, 1, Q("1.5 in")))
sketch2.addConstraint(Sketcher.Constraint("DistanceY", 41, 3, -1, 1, Q("0.5 in")))
sketch2.addConstraint(Sketcher.Constraint("DistanceX", 0, 2, 0, 1, Q("0.125 in")))
sketch2.addConstraint(Sketcher.Constraint("DistanceX", -1, 1, 1, 3, Q("13.8125 in")))
sketch2.addConstraint(Sketcher.Constraint("DistanceX", -1, 1, 45, 3, Q("0.3125 in")))
pocket1 = body.newObject("PartDesign::Pocket", "Pocket")
pocket1.Profile = sketch2
pocket1.Type = "ThroughAll"
pocket1.Midplane = True

sketch3 = body.newObject("Sketcher::SketchObject", "Sketch002")
sketch3.AttachmentSupport = (doc.getObject("XZ_Plane"), [""])
sketch3.MapMode = "FlatFace"
sketch3.addGeometry(Part.Circle(App.Vector(277.8, -266.7, 0), App.Vector(0, 0, 1), 4.8), False)
sketch3.addGeometry(Part.Circle(App.Vector(277.8, -146.1, 0), App.Vector(0, 0, 1), 4.8), False)
sketch3.addConstraint(Sketcher.Constraint("Equal", 0, 1))
sketch3.addConstraint(Sketcher.Constraint("Vertical", 0, 3, 1, 3))
sketch3.addConstraint(Sketcher.Constraint("Diameter", 0, Q("0.375 in")))
sketch3.addConstraint(Sketcher.Constraint("DistanceY", 0, 3, -1, 1, Q("10.5 in")))
sketch3.addConstraint(Sketcher.Constraint("DistanceY", 1, 3, -1, 1, Q("5.75 in")))
sketch3.addConstraint(Sketcher.Constraint("DistanceX", -1, 1, 0, 3, Q("10.9375 in")))
pocket2 = body.newObject("PartDesign::Pocket", "Pocket001")
pocket2.Profile = sketch3
pocket2.Type = "ThroughAll"

sketch4 = body.newObject("Sketcher::SketchObject", "Sketch003")
sketch4.AttachmentSupport = (doc.getObject("XZ_Plane"), [""])
sketch4.MapMode = "FlatFace"
sketch4.addGeometry(Part.Circle(App.Vector(257.2, -266.9, 0), App.Vector(0, 0, 1), 3.2), False)
sketch4.addGeometry(Part.Circle(App.Vector(273.1, -222.5, 0), App.Vector(0, 0, 1), 3.2), False)
sketch4.addGeometry(Part.Circle(App.Vector(241.3, -222.5, 0), App.Vector(0, 0, 1), 3.2), False)
sketch4.addConstraint(Sketcher.Constraint("Equal", 0, 1))
sketch4.addConstraint(Sketcher.Constraint("Equal", 1, 2))
sketch4.addConstraint(Sketcher.Constraint("Horizontal", 1, 3, 2, 3))
sketch4.addConstraint(Sketcher.Constraint("Diameter", 0, Q("0.25 in")))
sketch4.addConstraint(Sketcher.Constraint("DistanceX", -1, 1, 2, 3, Q("9.5 in")))
sketch4.addConstraint(Sketcher.Constraint("DistanceX", -1, 1, 1, 3, Q("10.75 in")))
sketch4.addConstraint(Sketcher.Constraint("DistanceY", 0, 3, 1, 3, Q("1.75 in")))
sketch4.addConstraint(Sketcher.Constraint("DistanceX", -1, 1, 0, 3, Q("10.125 in")))
sketch4.addConstraint(Sketcher.Constraint("DistanceY", 0, 3, -1, 1, 266.944117))
pocket3 = body.newObject("PartDesign::Pocket", "Pocket002")
pocket3.Profile = sketch4
pocket3.Type = "ThroughAll"

sketch5 = body.newObject("Sketcher::SketchObject", "Sketch004")
sketch5.AttachmentSupport = (doc.getObject("XZ_Plane"), [""])
sketch5.MapMode = "FlatFace"
sketch5.addGeometry(Part.Circle(App.Vector(109.7, -228.6, 0), App.Vector(0, 0, 1), 3.2), False)
sketch5.addGeometry(Part.Circle(App.Vector(109.7, -177.8, 0), App.Vector(0, 0, 1), 3.2), False)
sketch5.addGeometry(Part.Circle(App.Vector(109.7, -123.8, 0), App.Vector(0, 0, 1), 3.2), False)
sketch5.addGeometry(Part.Circle(App.Vector(109.7, -73, 0), App.Vector(0, 0, 1), 3.2), False)
sketch5.addGeometry(Part.Circle(App.Vector(160.5, -228.6, 0), App.Vector(0, 0, 1), 3.2), False)
sketch5.addGeometry(Part.Circle(App.Vector(160.5, -177.8, 0), App.Vector(0, 0, 1), 3.2), False)
sketch5.addGeometry(Part.Circle(App.Vector(160.5, -123.8, 0), App.Vector(0, 0, 1), 3.2), False)
sketch5.addGeometry(Part.Circle(App.Vector(160.5, -73, 0), App.Vector(0, 0, 1), 3.2), False)
sketch5.addConstraint(Sketcher.Constraint("Equal", 0, 1))
sketch5.addConstraint(Sketcher.Constraint("Equal", 1, 2))
sketch5.addConstraint(Sketcher.Constraint("Equal", 2, 3))
sketch5.addConstraint(Sketcher.Constraint("Equal", 3, 4))
sketch5.addConstraint(Sketcher.Constraint("Equal", 4, 5))
sketch5.addConstraint(Sketcher.Constraint("Equal", 5, 6))
sketch5.addConstraint(Sketcher.Constraint("Equal", 6, 7))
sketch5.addConstraint(Sketcher.Constraint("Horizontal", 0, 3, 4, 3))
sketch5.addConstraint(Sketcher.Constraint("Horizontal", 1, 3, 5, 3))
sketch5.addConstraint(Sketcher.Constraint("Horizontal", 2, 3, 6, 3))
sketch5.addConstraint(Sketcher.Constraint("Horizontal", 3, 3, 7, 3))
sketch5.addConstraint(Sketcher.Constraint("Vertical", 0, 3, 1, 3))
sketch5.addConstraint(Sketcher.Constraint("Vertical", 1, 3, 2, 3))
sketch5.addConstraint(Sketcher.Constraint("Vertical", 2, 3, 3, 3))
sketch5.addConstraint(Sketcher.Constraint("Vertical", 4, 3, 5, 3))
sketch5.addConstraint(Sketcher.Constraint("Vertical", 5, 3, 6, 3))
sketch5.addConstraint(Sketcher.Constraint("Vertical", 6, 3, 7, 3))
sketch5.addConstraint(Sketcher.Constraint("Diameter", 0, Q("0.25 in")))
sketch5.addConstraint(Sketcher.Constraint("DistanceY", 0, 3, -1, 1, Q("9 in")))
sketch5.addConstraint(Sketcher.Constraint("DistanceY", 1, 3, -1, 1, Q("7 in")))
sketch5.addConstraint(Sketcher.Constraint("DistanceY", 2, 3, 3, 3, Q("2 in")))
sketch5.addConstraint(Sketcher.Constraint("DistanceX", 0, 3, 4, 3, Q("2 in")))
sketch5.addConstraint(Sketcher.Constraint("DistanceY", 2, 3, -1, 1, Q("4.875 in")))
sketch5.addConstraint(Sketcher.Constraint("DistanceX", -1, 1, 0, 3, 109.69696))
pocket4 = body.newObject("PartDesign::Pocket", "Pocket003")
pocket4.Profile = sketch5
pocket4.Type = "ThroughAll"

sketch6 = body.newObject("Sketcher::SketchObject", "Sketch005")
sketch6.AttachmentSupport = (doc.getObject("XZ_Plane"), [""])
sketch6.MapMode = "FlatFace"
sketch6.addGeometry(Part.Circle(App.Vector(25.4, -266.7, 0), App.Vector(0, 0, 1), 3.3), False)
sketch6.addGeometry(Part.Circle(App.Vector(336.6, -266.7, 0), App.Vector(0, 0, 1), 3.3), False)
sketch6.addGeometry(Part.Circle(App.Vector(336.6, -12.7, 0), App.Vector(0, 0, 1), 3.3), False)
sketch6.addGeometry(Part.Circle(App.Vector(25.4, -12.7, 0), App.Vector(0, 0, 1), 3.3), False)
sketch6.addConstraint(Sketcher.Constraint("Equal", 0, 1))
sketch6.addConstraint(Sketcher.Constraint("Equal", 1, 2))
sketch6.addConstraint(Sketcher.Constraint("Equal", 2, 3))
sketch6.addConstraint(Sketcher.Constraint("Horizontal", 0, 3, 1, 3))
sketch6.addConstraint(Sketcher.Constraint("Horizontal", 2, 3, 3, 3))
sketch6.addConstraint(Sketcher.Constraint("Vertical", 1, 3, 2, 3))
sketch6.addConstraint(Sketcher.Constraint("Vertical", 0, 3, 3, 3))
sketch6.addConstraint(Sketcher.Constraint("Diameter", 0, Q("0.26 in")))
sketch6.addConstraint(Sketcher.Constraint("DistanceX", -1, 1, 0, 3, Q("1 in")))
sketch6.addConstraint(Sketcher.Constraint("DistanceY", 1, 3, 2, 3, Q("10 in")))
sketch6.addConstraint(Sketcher.Constraint("DistanceY", 0, 3, -1, 1, Q("10.5 in")))
sketch6.addConstraint(Sketcher.Constraint("DistanceX", -1, 1, 1, 3, Q("13.25 in")))
pocket5 = body.newObject("PartDesign::Pocket", "Pocket004")
pocket5.Profile = sketch6
pocket5.Type = "ThroughAll"

doc.recompute()
